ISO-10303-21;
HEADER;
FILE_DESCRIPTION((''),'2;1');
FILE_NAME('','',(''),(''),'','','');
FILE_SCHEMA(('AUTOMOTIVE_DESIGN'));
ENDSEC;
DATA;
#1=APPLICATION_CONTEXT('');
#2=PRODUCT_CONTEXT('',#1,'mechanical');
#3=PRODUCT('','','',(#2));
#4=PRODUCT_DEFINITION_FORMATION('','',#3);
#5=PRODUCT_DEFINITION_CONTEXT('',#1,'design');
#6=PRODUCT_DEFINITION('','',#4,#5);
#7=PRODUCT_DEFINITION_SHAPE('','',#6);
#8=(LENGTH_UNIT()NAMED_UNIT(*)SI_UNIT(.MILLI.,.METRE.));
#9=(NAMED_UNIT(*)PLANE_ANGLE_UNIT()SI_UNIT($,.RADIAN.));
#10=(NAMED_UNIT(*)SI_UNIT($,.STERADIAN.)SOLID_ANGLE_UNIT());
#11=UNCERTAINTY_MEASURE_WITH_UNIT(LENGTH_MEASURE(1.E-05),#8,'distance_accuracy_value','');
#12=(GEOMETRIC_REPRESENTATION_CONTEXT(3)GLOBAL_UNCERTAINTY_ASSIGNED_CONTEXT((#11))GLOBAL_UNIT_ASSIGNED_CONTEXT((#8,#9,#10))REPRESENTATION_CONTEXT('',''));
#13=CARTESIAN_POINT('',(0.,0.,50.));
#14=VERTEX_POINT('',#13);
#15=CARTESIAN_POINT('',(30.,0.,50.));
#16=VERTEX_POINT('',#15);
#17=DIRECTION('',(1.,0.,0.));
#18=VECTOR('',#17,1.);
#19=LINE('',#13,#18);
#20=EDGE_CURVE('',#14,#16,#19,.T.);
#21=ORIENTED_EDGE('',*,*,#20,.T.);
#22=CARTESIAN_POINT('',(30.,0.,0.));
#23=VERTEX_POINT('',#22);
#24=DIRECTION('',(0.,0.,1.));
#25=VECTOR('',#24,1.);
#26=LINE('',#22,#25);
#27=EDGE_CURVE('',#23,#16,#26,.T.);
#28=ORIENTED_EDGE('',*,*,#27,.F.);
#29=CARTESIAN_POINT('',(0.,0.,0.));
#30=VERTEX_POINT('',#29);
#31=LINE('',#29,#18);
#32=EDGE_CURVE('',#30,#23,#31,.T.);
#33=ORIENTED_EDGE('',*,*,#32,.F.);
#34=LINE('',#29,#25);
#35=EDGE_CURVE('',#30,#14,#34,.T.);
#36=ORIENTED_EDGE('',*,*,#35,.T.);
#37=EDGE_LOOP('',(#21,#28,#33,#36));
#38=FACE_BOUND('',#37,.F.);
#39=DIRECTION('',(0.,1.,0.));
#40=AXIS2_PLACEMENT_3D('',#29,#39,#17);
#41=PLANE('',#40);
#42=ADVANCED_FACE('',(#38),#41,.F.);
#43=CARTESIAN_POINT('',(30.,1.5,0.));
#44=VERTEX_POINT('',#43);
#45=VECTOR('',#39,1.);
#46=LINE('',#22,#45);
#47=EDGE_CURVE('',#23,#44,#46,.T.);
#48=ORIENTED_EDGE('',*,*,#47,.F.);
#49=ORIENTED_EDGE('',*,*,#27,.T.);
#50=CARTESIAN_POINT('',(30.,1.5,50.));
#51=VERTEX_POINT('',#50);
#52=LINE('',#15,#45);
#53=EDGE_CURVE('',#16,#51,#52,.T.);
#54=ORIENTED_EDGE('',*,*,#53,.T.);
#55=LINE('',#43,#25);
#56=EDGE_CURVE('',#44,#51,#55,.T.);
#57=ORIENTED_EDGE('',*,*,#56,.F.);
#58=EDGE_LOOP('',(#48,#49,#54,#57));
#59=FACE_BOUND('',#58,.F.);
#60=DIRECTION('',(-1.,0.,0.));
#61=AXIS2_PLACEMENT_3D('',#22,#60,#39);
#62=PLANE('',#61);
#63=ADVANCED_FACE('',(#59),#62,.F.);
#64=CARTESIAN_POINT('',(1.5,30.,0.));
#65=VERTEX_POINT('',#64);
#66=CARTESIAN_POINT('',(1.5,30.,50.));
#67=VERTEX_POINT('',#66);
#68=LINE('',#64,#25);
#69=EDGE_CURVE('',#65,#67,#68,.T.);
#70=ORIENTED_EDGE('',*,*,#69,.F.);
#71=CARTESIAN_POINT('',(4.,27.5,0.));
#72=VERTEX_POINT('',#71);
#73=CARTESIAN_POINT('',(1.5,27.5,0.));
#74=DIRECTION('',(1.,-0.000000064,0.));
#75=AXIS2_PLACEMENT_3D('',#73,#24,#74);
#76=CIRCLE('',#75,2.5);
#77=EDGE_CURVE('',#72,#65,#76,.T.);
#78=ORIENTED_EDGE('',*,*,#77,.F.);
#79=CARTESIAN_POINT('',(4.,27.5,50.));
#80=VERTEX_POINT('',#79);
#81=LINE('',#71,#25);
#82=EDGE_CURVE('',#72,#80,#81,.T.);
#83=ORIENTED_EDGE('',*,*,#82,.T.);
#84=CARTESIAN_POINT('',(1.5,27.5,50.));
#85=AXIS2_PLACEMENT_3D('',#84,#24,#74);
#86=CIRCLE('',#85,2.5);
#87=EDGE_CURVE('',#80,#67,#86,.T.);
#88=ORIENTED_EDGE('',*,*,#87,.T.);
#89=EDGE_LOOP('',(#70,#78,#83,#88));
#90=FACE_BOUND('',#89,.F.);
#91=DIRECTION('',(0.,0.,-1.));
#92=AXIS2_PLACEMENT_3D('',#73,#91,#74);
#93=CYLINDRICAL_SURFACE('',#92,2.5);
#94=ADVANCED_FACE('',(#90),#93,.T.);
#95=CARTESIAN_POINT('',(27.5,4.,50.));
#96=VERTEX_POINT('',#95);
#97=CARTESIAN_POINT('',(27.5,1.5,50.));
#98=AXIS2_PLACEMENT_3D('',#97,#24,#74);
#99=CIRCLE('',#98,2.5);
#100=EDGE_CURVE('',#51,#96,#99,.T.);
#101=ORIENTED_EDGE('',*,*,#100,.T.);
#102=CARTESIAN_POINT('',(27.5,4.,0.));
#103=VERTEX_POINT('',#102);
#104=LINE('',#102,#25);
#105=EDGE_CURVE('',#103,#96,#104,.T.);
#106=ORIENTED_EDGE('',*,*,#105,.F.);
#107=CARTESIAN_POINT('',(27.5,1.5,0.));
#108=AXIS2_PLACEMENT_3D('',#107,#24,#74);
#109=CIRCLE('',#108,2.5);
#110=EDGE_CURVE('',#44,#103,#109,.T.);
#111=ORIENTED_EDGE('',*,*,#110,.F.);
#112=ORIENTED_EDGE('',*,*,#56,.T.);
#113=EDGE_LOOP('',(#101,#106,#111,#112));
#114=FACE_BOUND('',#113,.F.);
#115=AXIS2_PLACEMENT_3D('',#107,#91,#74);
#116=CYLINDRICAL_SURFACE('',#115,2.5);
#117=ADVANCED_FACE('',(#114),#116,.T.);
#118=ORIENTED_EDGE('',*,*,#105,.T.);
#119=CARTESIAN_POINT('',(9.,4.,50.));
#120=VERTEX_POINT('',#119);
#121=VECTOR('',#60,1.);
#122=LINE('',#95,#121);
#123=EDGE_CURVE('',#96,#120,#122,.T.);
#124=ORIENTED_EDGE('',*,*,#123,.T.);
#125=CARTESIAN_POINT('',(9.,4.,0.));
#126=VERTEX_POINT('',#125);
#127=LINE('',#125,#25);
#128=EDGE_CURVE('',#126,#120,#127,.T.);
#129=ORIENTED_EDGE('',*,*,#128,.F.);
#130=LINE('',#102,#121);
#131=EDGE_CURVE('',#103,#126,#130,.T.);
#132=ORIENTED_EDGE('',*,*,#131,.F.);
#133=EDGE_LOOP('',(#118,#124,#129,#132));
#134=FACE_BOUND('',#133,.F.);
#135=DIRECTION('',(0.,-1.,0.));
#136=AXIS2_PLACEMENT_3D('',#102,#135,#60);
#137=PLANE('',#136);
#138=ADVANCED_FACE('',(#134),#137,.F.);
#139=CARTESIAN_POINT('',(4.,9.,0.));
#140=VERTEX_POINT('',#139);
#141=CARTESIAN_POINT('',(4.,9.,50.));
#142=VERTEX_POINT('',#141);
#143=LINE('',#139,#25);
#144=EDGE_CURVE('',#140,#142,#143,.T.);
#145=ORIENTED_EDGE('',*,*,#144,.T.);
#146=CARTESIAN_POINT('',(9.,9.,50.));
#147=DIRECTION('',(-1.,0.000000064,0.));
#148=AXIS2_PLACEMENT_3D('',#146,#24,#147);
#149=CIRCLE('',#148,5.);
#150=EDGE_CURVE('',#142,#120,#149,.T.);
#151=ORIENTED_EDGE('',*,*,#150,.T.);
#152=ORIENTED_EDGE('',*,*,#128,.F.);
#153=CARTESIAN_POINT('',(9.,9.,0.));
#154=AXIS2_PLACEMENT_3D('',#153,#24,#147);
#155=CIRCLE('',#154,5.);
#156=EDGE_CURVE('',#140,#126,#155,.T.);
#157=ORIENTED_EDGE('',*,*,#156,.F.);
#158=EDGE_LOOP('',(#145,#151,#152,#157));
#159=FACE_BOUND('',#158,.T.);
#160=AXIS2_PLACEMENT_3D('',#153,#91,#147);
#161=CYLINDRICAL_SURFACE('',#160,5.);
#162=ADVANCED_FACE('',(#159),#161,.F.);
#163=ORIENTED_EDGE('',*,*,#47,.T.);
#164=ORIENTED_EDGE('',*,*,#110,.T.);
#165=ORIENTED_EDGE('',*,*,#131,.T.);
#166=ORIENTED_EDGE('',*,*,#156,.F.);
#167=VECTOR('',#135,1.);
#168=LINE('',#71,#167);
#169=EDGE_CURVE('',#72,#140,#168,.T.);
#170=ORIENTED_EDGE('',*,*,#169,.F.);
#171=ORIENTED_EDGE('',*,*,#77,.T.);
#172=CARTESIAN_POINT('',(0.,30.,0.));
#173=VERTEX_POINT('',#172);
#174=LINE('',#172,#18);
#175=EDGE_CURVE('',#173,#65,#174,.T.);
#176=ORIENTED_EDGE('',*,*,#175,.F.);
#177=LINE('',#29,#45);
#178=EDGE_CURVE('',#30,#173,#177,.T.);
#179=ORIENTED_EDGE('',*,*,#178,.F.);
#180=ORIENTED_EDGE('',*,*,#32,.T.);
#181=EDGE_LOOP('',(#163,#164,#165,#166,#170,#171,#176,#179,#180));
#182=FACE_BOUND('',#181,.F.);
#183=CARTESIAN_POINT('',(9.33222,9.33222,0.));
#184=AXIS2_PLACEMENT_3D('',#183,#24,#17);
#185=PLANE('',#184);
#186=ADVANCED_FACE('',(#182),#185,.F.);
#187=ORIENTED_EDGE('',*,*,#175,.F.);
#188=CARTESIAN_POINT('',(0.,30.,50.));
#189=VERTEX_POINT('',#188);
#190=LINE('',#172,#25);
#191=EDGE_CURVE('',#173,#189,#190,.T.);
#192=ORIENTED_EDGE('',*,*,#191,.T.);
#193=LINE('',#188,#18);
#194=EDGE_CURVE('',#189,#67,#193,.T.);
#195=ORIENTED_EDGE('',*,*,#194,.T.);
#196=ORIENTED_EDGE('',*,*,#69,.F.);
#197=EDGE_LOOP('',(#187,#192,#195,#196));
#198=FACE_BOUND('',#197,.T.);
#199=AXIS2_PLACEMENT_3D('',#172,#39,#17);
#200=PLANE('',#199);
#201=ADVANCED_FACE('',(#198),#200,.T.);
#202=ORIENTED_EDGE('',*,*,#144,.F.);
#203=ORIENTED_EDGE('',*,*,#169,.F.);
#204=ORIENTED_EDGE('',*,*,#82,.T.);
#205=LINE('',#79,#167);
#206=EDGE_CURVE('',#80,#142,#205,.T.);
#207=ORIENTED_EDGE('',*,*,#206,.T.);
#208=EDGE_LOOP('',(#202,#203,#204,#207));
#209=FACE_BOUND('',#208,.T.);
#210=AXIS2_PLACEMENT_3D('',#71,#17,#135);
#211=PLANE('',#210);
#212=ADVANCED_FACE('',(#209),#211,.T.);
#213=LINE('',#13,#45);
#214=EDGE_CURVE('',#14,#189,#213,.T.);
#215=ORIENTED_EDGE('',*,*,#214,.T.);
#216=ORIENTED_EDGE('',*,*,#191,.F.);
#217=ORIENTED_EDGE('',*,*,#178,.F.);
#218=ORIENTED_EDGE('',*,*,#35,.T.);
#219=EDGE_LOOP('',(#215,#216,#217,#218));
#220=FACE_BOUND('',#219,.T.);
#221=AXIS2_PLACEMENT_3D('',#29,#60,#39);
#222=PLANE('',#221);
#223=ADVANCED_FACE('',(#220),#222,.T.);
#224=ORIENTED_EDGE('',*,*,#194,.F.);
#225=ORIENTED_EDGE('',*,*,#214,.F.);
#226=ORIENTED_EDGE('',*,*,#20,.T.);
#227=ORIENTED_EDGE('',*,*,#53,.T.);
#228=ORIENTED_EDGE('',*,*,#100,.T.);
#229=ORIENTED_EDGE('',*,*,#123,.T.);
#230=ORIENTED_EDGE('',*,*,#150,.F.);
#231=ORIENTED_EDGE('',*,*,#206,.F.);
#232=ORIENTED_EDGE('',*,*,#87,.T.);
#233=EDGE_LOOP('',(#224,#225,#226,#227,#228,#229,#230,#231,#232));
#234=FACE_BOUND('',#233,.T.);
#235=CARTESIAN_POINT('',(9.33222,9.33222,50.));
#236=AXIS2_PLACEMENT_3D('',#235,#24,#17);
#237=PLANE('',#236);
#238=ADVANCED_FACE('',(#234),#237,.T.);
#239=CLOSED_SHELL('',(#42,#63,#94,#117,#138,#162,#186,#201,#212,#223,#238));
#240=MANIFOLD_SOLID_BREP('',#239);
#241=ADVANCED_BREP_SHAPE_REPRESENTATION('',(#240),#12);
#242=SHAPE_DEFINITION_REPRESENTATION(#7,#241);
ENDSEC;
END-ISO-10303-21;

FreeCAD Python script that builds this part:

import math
import FreeCAD as App
import Part
import Sketcher
from FreeCAD import Vector

doc = App.newDocument("Part")
params = doc.addObject("Spreadsheet::Sheet", "Params")
for row, (alias, value) in enumerate([
    ("sketch1_radius", "5 mm"),
    ("sketch1_radius2", "2.5 mm"),
    ("sketch1_width", "30 mm"),
    ("sketch1_width2", "18.5 mm"),
    ("pad1_length", "50 mm"),
], start=1):
    params.set(f"A{row}", alias)
    params.set(f"B{row}", "=" + value)
    params.setAlias(f"B{row}", alias)

body = doc.addObject("PartDesign::Body", "Body")

# Sketch on XY plane
sketch1 = body.newObject("Sketcher::SketchObject", "Sketch")
sketch1.AttachmentSupport = (doc.getObject("XY_Plane"), [""])
sketch1.MapMode = "FlatFace"
sketch1.addGeometry(Part.LineSegment(Vector(0, 0, 0), Vector(30, 0, 0)), False)
sketch1.addGeometry(Part.LineSegment(Vector(30, 0, 0), Vector(30, 1.5, 0)), False)
sketch1.addGeometry(Part.ArcOfCircle(Part.Circle(Vector(27.5, 1.5, 0), Vector(0, 0, 1), 2.5), math.radians(-0.000004), math.radians(90.000004)), False)
sketch1.addGeometry(Part.LineSegment(Vector(27.5, 4, 0), Vector(9, 4, 0)), False)
sketch1.addGeometry(Part.ArcOfCircle(Part.Circle(Vector(9, 9, 0), Vector(0, 0, 1), 5), math.radians(179.999996), math.radians(270.000004)), False)
sketch1.addGeometry(Part.LineSegment(Vector(4, 9, 0), Vector(4, 27.5, 0)), False)
sketch1.addGeometry(Part.ArcOfCircle(Part.Circle(Vector(1.5, 27.5, 0), Vector(0, 0, 1), 2.5), math.radians(-0.000004), math.radians(90.000004)), False)
sketch1.addGeometry(Part.LineSegment(Vector(1.5, 30, 0), Vector(0, 30, 0)), False)
sketch1.addGeometry(Part.LineSegment(Vector(0, 30, 0), Vector(0, 0, 0)), False)
sketch1.addConstraint(Sketcher.Constraint("Coincident", 0, 2, 1, 1))
sketch1.addConstraint(Sketcher.Constraint("Tangent", 1, 2, 2, 1))
sketch1.addConstraint(Sketcher.Constraint("Tangent", 2, 2, 3, 1))
sketch1.addConstraint(Sketcher.Constraint("Tangent", 3, 2, 4, 2))
sketch1.addConstraint(Sketcher.Constraint("Tangent", 4, 1, 5, 1))
sketch1.addConstraint(Sketcher.Constraint("Tangent", 5, 2, 6, 1))
sketch1.addConstraint(Sketcher.Constraint("Tangent", 6, 2, 7, 1))
sketch1.addConstraint(Sketcher.Constraint("Coincident", 7, 2, 8, 1))
sketch1.addConstraint(Sketcher.Constraint("Coincident", 8, 2, 0, 1))
sketch1.addConstraint(Sketcher.Constraint("Horizontal", 0))
sketch1.addConstraint(Sketcher.Constraint("Vertical", 1))
sketch1.addConstraint(Sketcher.Constraint("Horizontal", 3))
sketch1.addConstraint(Sketcher.Constraint("Vertical", 5))
sketch1.addConstraint(Sketcher.Constraint("Horizontal", 7))
sketch1.addConstraint(Sketcher.Constraint("Vertical", 8))
sketch1.addConstraint(Sketcher.Constraint("Coincident", 8, 2, -1, 1))
sketch1.addConstraint(Sketcher.Constraint("Equal", 2, 6))
sketch1.addConstraint(Sketcher.Constraint("Equal", 7, 1))
sketch1.addConstraint(Sketcher.Constraint("Equal", 3, 5))
sketch1.addConstraint(Sketcher.Constraint("Radius", 4, 5.0))
sketch1.addConstraint(Sketcher.Constraint("Radius", 2, 2.5))
sketch1.addConstraint(Sketcher.Constraint("DistanceX", 0, 1, 0, 2, 30.0))
sketch1.addConstraint(Sketcher.Constraint("DistanceX", 3, 2, 3, 1, 18.5))
sketch1.setExpression("Constraints[19]", "Params.sketch1_radius")
sketch1.setExpression("Constraints[20]", "Params.sketch1_radius2")
sketch1.setExpression("Constraints[21]", "Params.sketch1_width")
sketch1.setExpression("Constraints[22]", "Params.sketch1_width2")
pad1 = body.newObject("PartDesign::Pad", "Pad")
pad1.Profile = sketch1
pad1.setExpression("Length", "Params.pad1_length")

doc.recompute()
